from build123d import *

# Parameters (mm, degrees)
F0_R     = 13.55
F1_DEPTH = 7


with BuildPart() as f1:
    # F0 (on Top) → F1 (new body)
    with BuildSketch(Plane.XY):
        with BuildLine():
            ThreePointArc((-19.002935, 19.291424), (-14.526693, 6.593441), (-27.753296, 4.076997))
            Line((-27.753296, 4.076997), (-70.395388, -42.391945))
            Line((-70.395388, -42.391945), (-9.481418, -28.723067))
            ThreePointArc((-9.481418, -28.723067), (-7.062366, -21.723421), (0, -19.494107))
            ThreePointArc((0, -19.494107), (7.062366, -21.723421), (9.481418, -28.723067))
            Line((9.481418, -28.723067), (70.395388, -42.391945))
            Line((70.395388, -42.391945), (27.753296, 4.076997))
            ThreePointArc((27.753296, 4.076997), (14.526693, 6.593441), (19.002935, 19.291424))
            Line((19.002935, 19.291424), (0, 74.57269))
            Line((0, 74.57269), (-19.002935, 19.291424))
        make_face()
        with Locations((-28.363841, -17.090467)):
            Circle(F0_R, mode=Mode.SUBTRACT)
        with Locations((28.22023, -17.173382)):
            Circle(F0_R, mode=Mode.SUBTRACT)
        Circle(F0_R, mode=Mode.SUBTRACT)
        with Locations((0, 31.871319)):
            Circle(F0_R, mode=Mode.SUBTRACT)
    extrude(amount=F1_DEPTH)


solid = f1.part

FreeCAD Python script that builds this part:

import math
import FreeCAD as App
import Part
import Sketcher
Q = App.Units.Quantity

doc = App.newDocument("Part")
params = doc.addObject("Spreadsheet::Sheet", "Params")
for row, (alias, value) in enumerate([
    ("sketch1_diameter", "27.1 mm"),
    ("pad1_length", "7 mm"),
], start=1):
    params.set(f"A{row}", alias)
    params.set(f"B{row}", "=" + value)
    params.setAlias(f"B{row}", alias)

body = doc.addObject("PartDesign::Body", "Body")

# Sketch on XY plane
sketch1 = body.newObject("Sketcher::SketchObject", "Sketch")
sketch1.AttachmentSupport = (doc.getObject("XY_Plane"), [""])
sketch1.MapMode = "FlatFace"
sketch1.addGeometry(Part.ArcOfCircle(Part.Circle(App.Vector(-22, 11, 0), App.Vector(0, 0, 1), 9), math.radians(-129), math.radians(69)), False)
sketch1.addGeometry(Part.LineSegment(App.Vector(-28, 4, 0), App.Vector(-70, -42, 0)), False)
sketch1.addGeometry(Part.LineSegment(App.Vector(-70, -42, 0), App.Vector(-9, -29, 0)), False)
sketch1.addGeometry(Part.ArcOfCircle(Part.Circle(App.Vector(-1, -28, 0), App.Vector(0, 0, 1), 8), math.radians(81), math.radians(188)), False)
sketch1.addGeometry(Part.ArcOfCircle(Part.Circle(App.Vector(1, -28, 0), App.Vector(0, 0, 1), 8), math.radians(-8), math.radians(99)), False)
sketch1.addGeometry(Part.LineSegment(App.Vector(9, -29, 0), App.Vector(70, -42, 0)), False)
sketch1.addGeometry(Part.LineSegment(App.Vector(70, -42, 0), App.Vector(28, 4, 0)), False)
sketch1.addGeometry(Part.ArcOfCircle(Part.Circle(App.Vector(22, 11, 0), App.Vector(0, 0, 1), 9), math.radians(111), math.radians(309)), False)
sketch1.addGeometry(Part.LineSegment(App.Vector(19, 19, 0), App.Vector(0, 75, 0)), False)
sketch1.addGeometry(Part.LineSegment(App.Vector(0, 75, 0), App.Vector(-19, 19, 0)), False)
sketch1.addGeometry(Part.Circle(App.Vector(-28, -17, 0), App.Vector(0, 0, 1), 14), False)
sketch1.addGeometry(Part.Circle(App.Vector(28, -17, 0), App.Vector(0, 0, 1), 14), False)
sketch1.addGeometry(Part.Circle(App.Vector(0, 0, 0), App.Vector(0, 0, 1), 14), False)
sketch1.addGeometry(Part.Circle(App.Vector(0, 32, 0), App.Vector(0, 0, 1), 14), False)
sketch1.addConstraint(Sketcher.Constraint("Coincident", 0, 1, 1, 1))
sketch1.addConstraint(Sketcher.Constraint("Coincident", 1, 2, 2, 1))
sketch1.addConstraint(Sketcher.Constraint("Coincident", 2, 2, 3, 2))
sketch1.addConstraint(Sketcher.Constraint("Coincident", 3, 1, 4, 2))
sketch1.addConstraint(Sketcher.Constraint("Coincident", 4, 1, 5, 1))
sketch1.addConstraint(Sketcher.Constraint("Coincident", 5, 2, 6, 1))
sketch1.addConstraint(Sketcher.Constraint("Coincident", 6, 2, 7, 2))
sketch1.addConstraint(Sketcher.Constraint("Coincident", 7, 1, 8, 1))
sketch1.addConstraint(Sketcher.Constraint("Coincident", 8, 2, 9, 1))
sketch1.addConstraint(Sketcher.Constraint("Coincident", 9, 2, 0, 2))
sketch1.addConstraint(Sketcher.Constraint("Coincident", 12, 3, -1, 1))
sketch1.addConstraint(Sketcher.Constraint("Equal", 3, 4))
sketch1.addConstraint(Sketcher.Constraint("Equal", 0, 7))
sketch1.addConstraint(Sketcher.Constraint("Equal", 10, 11))
sketch1.addConstraint(Sketcher.Constraint("Equal", 11, 12))
sketch1.addConstraint(Sketcher.Constraint("Equal", 12, 13))
sketch1.addConstraint(Sketcher.Constraint("Symmetric", 3, 3, 4, 3, -2))
sketch1.addConstraint(Sketcher.Constraint("Symmetric", 0, 3, 7, 3, -2))
sketch1.addConstraint(Sketcher.Constraint("Symmetric", 1, 2, 5, 2, -2))
sketch1.addConstraint(Sketcher.Constraint("PointOnObject", 13, 3, -2))
sketch1.addConstraint(Sketcher.Constraint("PointOnObject", 8, 2, -2))
sketch1.addConstraint(Sketcher.Constraint("Horizontal", 2, 2, 4, 1))
sketch1.addConstraint(Sketcher.Constraint("Horizontal", 0, 1, 6, 2))
sketch1.addConstraint(Sketcher.Constraint("Horizontal", 7, 1, 9, 2))
sketch1.addConstraint(Sketcher.Constraint("Diameter", 10, Q("27.1 mm")))
sketch1.addConstraint(Sketcher.Constraint("Radius", 0, Q("8.876521 mm")))
sketch1.addConstraint(Sketcher.Constraint("Radius", 3, Q("8.238902 mm")))
sketch1.addConstraint(Sketcher.Constraint("DistanceY", 11, 3, 13, 3, Q("49.044701 mm")))
sketch1.addConstraint(Sketcher.Constraint("DistanceX", 1, 2, 4, 3, Q("71.711101 mm")))
sketch1.addConstraint(Sketcher.Constraint("DistanceY", 2, 2, 10, 3, Q("11.6326 mm")))
sketch1.addConstraint(Sketcher.Constraint("Distance", 2, Q("62.428759 mm")))
sketch1.addConstraint(Sketcher.Constraint("DistanceX", 10, 3, -1, 1, Q("28.363841 mm")))
sketch1.addConstraint(Sketcher.Constraint("DistanceX", -1, 1, 11, 3, Q("28.22023 mm")))
sketch1.addConstraint(Sketcher.Constraint("DistanceY", 11, 3, -1, 1, Q("17.173382 mm")))
sketch1.addConstraint(Sketcher.Constraint("DistanceY", -1, 1, 8, 2, Q("74.57269 mm")))
sketch1.addConstraint(Sketcher.Constraint("DistanceX", 0, 3, 3, 3, Q("20.905641 mm")))
sketch1.addConstraint(Sketcher.Constraint("DistanceY", 3, 3, 0, 3, Q("38.646189 mm")))
sketch1.addConstraint(Sketcher.Constraint("DistanceX", 10, 3, 3, 3, Q("27.048128 mm")))
sketch1.addConstraint(Sketcher.Constraint("DistanceY", 0, 1, 0, 3, Q("6.941918 mm")))
sketch1.addConstraint(Sketcher.Constraint("DistanceY", 1, 2, 0, 1, Q("46.468942 mm")))
sketch1.addConstraint(Sketcher.Constraint("DistanceY", 11, 3, 6, 2, Q("21.250379 mm")))
sketch1.addConstraint(Sketcher.Constraint("DistanceX", 7, 1, 7, 3, Q("3.218418 mm")))
sketch1.setExpression("Constraints[24]", "Params.sketch1_diameter")
pad1 = body.newObject("PartDesign::Pad", "Pad")
pad1.Profile = sketch1
pad1.setExpression("Length", "Params.pad1_length")

doc.recompute()
